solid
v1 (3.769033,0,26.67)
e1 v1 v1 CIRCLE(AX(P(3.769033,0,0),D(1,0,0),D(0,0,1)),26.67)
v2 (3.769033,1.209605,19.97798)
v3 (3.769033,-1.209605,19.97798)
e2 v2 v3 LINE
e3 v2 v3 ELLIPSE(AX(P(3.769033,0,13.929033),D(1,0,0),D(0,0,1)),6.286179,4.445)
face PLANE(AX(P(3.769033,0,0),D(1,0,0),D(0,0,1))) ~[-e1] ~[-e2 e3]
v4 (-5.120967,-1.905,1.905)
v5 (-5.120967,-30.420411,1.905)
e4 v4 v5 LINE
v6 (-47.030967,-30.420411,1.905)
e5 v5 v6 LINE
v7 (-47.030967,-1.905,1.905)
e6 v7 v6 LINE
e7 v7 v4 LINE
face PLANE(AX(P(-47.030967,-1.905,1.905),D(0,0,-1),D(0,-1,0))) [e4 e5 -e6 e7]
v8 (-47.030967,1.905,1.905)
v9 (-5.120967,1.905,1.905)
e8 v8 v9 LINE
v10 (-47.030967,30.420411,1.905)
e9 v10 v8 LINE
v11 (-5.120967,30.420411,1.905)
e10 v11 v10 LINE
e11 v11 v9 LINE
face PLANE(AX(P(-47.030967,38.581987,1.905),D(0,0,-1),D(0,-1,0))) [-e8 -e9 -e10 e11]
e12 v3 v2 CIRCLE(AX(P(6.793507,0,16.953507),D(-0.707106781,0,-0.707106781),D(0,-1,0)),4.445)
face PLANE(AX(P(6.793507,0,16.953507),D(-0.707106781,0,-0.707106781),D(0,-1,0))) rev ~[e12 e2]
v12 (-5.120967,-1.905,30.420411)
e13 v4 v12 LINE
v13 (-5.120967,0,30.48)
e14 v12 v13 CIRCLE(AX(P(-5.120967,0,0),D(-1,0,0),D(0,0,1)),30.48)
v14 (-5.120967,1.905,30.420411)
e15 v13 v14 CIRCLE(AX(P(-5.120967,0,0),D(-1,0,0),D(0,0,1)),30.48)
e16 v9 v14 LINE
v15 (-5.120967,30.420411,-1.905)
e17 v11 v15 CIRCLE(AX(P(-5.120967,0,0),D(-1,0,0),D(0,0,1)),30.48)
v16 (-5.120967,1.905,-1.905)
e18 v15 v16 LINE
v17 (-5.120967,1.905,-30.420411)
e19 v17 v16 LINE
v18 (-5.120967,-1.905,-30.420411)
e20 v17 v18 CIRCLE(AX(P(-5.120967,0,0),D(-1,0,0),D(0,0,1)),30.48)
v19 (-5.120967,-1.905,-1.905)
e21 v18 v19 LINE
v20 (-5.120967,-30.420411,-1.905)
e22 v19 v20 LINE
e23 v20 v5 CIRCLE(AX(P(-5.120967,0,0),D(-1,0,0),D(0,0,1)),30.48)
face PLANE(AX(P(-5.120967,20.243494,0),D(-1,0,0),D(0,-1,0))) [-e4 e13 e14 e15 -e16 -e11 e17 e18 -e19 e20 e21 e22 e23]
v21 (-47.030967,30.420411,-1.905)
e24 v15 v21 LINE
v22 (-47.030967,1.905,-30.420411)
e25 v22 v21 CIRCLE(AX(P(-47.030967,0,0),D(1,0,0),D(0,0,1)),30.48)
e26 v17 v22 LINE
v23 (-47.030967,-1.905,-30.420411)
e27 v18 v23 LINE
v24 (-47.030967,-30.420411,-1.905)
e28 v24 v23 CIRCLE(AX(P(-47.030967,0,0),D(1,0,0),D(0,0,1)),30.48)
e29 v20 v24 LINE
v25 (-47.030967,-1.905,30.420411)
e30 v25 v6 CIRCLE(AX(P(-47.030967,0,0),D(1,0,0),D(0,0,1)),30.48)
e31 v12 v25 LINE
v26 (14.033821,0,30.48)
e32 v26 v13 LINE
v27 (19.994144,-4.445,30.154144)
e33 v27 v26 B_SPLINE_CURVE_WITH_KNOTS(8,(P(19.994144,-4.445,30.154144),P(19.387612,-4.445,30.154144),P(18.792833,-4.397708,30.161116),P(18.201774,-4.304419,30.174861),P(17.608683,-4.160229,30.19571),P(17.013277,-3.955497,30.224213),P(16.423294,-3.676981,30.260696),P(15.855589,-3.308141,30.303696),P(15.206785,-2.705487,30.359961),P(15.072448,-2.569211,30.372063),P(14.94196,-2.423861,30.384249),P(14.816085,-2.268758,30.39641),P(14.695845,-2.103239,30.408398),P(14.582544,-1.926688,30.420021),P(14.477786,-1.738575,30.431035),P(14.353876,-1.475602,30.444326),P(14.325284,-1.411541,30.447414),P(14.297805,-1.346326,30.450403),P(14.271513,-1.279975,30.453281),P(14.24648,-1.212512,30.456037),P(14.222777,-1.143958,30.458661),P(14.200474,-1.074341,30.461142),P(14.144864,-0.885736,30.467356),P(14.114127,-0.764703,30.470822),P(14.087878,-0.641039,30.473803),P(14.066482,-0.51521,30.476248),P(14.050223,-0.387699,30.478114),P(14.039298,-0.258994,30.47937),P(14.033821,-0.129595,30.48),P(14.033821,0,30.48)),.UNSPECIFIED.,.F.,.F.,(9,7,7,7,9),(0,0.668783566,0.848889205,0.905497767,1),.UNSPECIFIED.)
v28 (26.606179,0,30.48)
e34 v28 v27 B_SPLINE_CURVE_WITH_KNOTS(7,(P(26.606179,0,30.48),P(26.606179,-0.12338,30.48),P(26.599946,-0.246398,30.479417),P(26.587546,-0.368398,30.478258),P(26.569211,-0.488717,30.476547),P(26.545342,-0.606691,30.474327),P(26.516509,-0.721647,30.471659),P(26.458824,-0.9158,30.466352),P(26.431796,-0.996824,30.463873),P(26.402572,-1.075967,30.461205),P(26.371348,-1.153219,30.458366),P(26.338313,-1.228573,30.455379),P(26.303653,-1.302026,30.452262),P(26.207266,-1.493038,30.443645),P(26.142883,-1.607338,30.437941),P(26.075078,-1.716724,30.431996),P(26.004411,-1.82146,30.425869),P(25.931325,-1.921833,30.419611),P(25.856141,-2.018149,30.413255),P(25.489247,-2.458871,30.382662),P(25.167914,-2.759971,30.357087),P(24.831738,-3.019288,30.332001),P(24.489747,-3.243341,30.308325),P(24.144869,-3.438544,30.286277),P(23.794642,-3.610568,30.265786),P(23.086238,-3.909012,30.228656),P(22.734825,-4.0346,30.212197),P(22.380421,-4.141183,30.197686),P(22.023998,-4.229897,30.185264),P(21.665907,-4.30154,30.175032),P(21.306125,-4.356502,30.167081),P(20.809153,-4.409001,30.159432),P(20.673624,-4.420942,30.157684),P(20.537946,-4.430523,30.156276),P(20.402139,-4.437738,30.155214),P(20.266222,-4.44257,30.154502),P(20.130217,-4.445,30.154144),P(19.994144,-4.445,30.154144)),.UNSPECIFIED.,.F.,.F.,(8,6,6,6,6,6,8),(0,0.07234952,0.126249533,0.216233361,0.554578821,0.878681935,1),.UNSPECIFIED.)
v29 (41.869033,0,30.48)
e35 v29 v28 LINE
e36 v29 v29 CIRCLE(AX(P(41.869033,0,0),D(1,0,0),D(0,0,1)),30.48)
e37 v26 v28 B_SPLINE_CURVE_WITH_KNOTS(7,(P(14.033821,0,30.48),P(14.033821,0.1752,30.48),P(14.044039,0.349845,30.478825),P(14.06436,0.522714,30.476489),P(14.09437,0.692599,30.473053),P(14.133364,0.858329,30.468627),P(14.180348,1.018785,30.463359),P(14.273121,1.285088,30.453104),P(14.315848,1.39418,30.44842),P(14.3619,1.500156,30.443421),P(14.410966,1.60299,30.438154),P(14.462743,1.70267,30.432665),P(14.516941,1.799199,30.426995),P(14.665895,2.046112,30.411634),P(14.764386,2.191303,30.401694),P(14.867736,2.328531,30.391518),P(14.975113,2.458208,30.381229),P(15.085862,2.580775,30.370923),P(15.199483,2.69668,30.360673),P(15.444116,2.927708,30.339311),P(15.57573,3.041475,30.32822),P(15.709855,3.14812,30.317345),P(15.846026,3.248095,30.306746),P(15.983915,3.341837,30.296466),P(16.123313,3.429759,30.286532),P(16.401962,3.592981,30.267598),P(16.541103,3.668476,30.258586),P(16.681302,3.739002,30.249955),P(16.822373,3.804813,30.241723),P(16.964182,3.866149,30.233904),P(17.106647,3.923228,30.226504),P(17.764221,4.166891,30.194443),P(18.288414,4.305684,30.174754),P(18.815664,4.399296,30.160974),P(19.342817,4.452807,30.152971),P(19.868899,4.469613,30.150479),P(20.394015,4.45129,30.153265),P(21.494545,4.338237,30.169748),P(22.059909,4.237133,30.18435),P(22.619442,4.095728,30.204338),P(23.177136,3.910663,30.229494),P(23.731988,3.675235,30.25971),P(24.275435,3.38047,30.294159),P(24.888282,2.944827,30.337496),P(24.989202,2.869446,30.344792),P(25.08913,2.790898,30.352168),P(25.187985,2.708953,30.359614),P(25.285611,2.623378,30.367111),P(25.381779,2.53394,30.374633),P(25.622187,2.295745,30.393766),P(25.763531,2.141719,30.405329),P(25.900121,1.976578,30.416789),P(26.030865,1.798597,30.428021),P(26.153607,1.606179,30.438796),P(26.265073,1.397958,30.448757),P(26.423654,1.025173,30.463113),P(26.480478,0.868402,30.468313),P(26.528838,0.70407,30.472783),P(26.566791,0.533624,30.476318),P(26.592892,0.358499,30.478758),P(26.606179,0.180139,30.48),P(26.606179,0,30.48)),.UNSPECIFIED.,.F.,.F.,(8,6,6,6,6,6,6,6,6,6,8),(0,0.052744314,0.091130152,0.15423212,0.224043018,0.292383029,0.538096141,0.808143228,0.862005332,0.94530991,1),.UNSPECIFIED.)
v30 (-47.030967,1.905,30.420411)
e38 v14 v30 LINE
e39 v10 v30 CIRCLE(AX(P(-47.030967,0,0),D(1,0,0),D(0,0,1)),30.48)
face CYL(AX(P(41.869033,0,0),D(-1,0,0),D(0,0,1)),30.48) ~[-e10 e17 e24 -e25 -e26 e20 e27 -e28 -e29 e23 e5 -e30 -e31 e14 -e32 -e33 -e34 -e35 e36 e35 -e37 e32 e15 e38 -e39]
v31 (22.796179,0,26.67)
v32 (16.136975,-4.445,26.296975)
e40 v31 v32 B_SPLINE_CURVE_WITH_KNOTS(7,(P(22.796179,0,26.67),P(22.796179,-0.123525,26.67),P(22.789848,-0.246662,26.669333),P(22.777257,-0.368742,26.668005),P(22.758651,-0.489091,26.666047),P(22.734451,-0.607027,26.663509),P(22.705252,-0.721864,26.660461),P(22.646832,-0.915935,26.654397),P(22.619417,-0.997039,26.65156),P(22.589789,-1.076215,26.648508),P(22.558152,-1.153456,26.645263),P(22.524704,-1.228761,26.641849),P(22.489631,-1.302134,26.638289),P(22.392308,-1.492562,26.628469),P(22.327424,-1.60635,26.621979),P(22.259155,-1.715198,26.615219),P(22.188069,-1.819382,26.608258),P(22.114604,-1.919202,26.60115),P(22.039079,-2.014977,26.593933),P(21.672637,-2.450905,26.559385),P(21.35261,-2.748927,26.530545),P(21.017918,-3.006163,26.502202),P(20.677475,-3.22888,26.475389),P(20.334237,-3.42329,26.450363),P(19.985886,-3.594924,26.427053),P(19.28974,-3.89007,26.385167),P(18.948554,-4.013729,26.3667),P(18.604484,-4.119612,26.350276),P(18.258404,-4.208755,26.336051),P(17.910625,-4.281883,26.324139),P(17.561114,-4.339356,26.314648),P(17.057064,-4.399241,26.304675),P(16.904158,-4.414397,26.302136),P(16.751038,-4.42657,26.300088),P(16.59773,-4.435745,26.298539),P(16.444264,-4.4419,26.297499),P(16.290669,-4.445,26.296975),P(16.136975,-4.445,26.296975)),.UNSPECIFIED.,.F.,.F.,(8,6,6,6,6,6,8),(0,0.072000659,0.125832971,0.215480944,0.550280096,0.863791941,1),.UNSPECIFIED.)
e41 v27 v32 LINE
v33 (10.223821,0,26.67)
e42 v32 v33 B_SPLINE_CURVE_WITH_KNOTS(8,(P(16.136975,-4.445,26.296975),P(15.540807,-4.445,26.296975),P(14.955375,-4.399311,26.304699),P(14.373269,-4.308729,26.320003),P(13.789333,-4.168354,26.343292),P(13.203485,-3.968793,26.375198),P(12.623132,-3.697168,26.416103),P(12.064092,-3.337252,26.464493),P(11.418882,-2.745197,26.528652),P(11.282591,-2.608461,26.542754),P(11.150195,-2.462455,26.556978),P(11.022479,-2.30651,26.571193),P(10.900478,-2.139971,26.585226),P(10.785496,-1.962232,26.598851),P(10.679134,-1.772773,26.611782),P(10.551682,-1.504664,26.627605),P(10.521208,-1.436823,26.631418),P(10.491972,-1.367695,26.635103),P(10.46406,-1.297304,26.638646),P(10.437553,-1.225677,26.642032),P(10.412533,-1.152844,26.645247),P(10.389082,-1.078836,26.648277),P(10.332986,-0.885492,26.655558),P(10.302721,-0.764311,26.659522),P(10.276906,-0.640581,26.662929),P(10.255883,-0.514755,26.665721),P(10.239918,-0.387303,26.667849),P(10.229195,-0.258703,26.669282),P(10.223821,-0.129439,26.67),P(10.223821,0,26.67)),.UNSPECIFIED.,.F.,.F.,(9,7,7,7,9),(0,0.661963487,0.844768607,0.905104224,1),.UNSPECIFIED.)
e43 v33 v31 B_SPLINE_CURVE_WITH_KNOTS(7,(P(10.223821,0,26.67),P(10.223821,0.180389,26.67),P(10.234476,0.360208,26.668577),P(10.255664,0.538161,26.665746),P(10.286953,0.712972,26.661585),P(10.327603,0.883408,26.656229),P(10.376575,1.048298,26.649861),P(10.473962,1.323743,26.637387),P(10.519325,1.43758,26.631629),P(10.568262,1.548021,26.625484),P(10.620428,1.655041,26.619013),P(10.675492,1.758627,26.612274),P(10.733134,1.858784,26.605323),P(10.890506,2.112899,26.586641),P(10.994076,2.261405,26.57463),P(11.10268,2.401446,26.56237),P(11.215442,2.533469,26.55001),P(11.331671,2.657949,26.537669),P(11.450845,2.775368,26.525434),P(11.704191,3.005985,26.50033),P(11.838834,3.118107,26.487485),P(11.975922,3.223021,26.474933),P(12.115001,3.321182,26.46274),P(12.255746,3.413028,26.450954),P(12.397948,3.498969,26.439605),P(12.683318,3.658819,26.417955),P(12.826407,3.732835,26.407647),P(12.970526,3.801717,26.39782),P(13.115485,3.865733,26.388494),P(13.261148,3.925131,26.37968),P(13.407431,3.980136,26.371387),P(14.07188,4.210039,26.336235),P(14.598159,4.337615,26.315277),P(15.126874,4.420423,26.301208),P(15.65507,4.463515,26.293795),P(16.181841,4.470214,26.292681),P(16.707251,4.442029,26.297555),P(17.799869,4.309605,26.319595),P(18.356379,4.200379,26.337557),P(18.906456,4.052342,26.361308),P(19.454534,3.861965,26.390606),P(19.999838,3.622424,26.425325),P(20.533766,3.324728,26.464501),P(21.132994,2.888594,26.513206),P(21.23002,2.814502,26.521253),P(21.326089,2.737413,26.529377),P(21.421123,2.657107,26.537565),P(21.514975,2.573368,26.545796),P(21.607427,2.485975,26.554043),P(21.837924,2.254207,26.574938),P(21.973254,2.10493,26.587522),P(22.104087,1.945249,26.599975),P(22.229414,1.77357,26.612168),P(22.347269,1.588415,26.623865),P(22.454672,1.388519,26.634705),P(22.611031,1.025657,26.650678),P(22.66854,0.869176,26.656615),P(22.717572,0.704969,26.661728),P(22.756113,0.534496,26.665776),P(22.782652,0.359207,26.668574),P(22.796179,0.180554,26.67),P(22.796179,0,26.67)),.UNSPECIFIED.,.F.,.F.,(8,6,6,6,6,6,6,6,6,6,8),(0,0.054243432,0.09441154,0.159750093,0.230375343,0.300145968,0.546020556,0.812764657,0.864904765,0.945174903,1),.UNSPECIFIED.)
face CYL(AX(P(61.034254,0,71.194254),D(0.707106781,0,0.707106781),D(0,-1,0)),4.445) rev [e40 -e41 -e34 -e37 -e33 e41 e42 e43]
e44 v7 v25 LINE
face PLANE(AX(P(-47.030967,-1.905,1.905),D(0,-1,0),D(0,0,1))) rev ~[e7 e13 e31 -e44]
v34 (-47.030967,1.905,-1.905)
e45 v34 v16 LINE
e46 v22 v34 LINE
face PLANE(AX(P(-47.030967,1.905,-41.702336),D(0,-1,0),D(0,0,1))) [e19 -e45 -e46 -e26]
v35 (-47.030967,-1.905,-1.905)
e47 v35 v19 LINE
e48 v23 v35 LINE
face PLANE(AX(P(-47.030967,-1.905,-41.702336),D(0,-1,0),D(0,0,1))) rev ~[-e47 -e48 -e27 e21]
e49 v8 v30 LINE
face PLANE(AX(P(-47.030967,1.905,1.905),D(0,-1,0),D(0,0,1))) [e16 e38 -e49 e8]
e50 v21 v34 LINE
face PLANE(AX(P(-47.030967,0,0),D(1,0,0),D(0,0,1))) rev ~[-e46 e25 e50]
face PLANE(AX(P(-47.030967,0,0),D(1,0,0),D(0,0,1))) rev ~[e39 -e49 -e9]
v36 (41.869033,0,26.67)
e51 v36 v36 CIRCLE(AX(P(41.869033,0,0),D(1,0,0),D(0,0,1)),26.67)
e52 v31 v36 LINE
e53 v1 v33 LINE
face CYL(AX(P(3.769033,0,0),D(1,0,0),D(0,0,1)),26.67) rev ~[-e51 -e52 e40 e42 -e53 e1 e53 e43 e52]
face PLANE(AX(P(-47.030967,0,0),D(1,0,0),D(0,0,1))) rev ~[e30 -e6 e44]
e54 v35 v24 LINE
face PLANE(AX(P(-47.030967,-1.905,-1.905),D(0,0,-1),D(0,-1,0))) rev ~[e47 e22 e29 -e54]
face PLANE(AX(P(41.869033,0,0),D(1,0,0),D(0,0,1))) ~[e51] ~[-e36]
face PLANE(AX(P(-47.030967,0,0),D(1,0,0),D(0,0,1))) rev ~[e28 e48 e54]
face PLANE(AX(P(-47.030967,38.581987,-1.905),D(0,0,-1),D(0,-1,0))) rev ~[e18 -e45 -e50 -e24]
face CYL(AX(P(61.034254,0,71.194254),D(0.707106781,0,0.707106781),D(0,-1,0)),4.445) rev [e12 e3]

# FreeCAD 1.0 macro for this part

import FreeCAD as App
import Part
import Sketcher
from FreeCAD import Vector
Q = App.Units.Quantity


def add_polygon(sketch, points):
    """Adds a closed chain of lines whose ends are joined by coincident constraints."""
    first, n = sketch.GeometryCount, len(points)
    for a, b in zip(points, points[1:] + points[:1]):
        sketch.addGeometry(Part.LineSegment(App.Vector(*a, 0), App.Vector(*b, 0)), False)
    for i in range(n):
        sketch.addConstraint(Sketcher.Constraint("Coincident", first + i, 2, first + (i + 1) % n, 1))

doc = App.newDocument("Part")
body = doc.addObject("PartDesign::Body", "Body")

sketch1 = doc.addObject("Sketcher::SketchObject", "Sketch")
body.addObject(sketch1)
sketch1.AttachmentSupport = (doc.XZ_Plane, [""])
sketch1.MapMode = "FlatFace"
add_polygon(sketch1, [(-47, 30.5), (-47, 0), (3.8, 0), (3.8, 26.7), (41.9, 26.7), (41.9, 30.5)])
sketch1.addConstraint([
    Sketcher.Constraint("Vertical", 0),
    Sketcher.Constraint("Horizontal", 1),
    Sketcher.Constraint("Vertical", 2),
    Sketcher.Constraint("Horizontal", 3),
    Sketcher.Constraint("Vertical", 4),
    Sketcher.Constraint("Horizontal", 5),
    Sketcher.Constraint("PointOnObject", 0, 2, -1),
    Sketcher.Constraint("DistanceX", 1, 1, 1, 2, Q("2 in")),
    Sketcher.Constraint("DistanceX", 3, 1, 3, 2, Q("1.5 in")),
    Sketcher.Constraint("DistanceY", 0, 2, 0, 1, Q("1.2 in")),
    Sketcher.Constraint("DistanceY", 2, 1, 2, 2, Q("1.05 in")),
    Sketcher.Constraint("DistanceX", 0, 2, -1, 1, 47.030967),
])
revolution = doc.addObject("PartDesign::Revolution", "Revolution")
body.addObject(revolution)
revolution.Profile = sketch1
revolution.ReferenceAxis = (sketch1, ["H_Axis"])
revolution.Angle = 360

sketch2 = doc.addObject("Sketcher::SketchObject", "Sketch001")
body.addObject(sketch2)
sketch2.AttachmentSupport = (doc.YZ_Plane, [""])
sketch2.MapMode = "FlatFace"
sketch2.AttachmentOffset = App.Placement(Vector(0, 0, -47.030967), App.Rotation())
add_polygon(sketch2, [(38.6, 1.9), (38.6, -1.9), (1.9, -1.9), (1.9, -41.7), (-1.9, -41.7), (-1.9, -1.9), (-37.6, -1.9), (-37.6, 1.9), (-1.9, 1.9), (-1.9, 34.5), (1.9, 34.5), (1.9, 1.9)])
sketch2.addConstraint([
    Sketcher.Constraint("Vertical", 0),
    Sketcher.Constraint("Horizontal", 1),
    Sketcher.Constraint("Vertical", 2),
    Sketcher.Constraint("Horizontal", 3),
    Sketcher.Constraint("Vertical", 4),
    Sketcher.Constraint("Horizontal", 5),
    Sketcher.Constraint("Vertical", 6),
    Sketcher.Constraint("Horizontal", 7),
    Sketcher.Constraint("Vertical", 8),
    Sketcher.Constraint("Horizontal", 9),
    Sketcher.Constraint("Vertical", 10),
    Sketcher.Constraint("Horizontal", 11),
    Sketcher.Constraint("Symmetric", 1, 2, 7, 2, -1, 1),
    Sketcher.Constraint("Symmetric", 4, 2, 10, 2, -1, 1),
    Sketcher.Constraint("Symmetric", 1, 2, 4, 2, -2),
    Sketcher.Constraint("Equal", 9, 0),
    Sketcher.Constraint("DistanceX", 5, 2, 0, 2, Q("3 in")),
    Sketcher.Constraint("DistanceX", 3, 2, 3, 1, Q("0.15 in")),
    Sketcher.Constraint("DistanceX", 1, 2, 1, 1, 36.676987),
    Sketcher.Constraint("DistanceY", 2, 2, 2, 1, 39.797336),
    Sketcher.Constraint("DistanceY", 8, 1, 8, 2, 32.592664),
])
pocket1 = doc.addObject("PartDesign::Pocket", "Pocket")
body.addObject(pocket1)
pocket1.Profile = sketch2
pocket1.Length = Q("1.65 in")
pocket1.Reversed = True

sketch3 = doc.addObject("Sketcher::SketchObject", "Sketch002")
body.addObject(sketch3)
sketch3.Placement = App.Placement(Vector(66.114254, 0, 66.114254), App.Rotation(Vector(0, -1, 0), Vector(-0.707106781, 0, 0.707106781), Vector(-0.707106781, 0, -0.707106781), "ZXY"))
sketch3.addGeometry(Part.Circle(Vector(0, 7.2, 0), Vector(0, 0, 1), 4.4), False)
sketch3.addConstraint([
    Sketcher.Constraint("PointOnObject", 0, 3, -2),
    Sketcher.Constraint("Diameter", 0, Q("0.35 in")),
    Sketcher.Constraint("DistanceY", -1, 1, 0, 3, 7.184205),
])
pocket2 = doc.addObject("PartDesign::Pocket", "Pocket001")
body.addObject(pocket2)
pocket2.Profile = sketch3
pocket2.Length = Q("3.02 in")
pocket2.Reversed = True

doc.recompute()
